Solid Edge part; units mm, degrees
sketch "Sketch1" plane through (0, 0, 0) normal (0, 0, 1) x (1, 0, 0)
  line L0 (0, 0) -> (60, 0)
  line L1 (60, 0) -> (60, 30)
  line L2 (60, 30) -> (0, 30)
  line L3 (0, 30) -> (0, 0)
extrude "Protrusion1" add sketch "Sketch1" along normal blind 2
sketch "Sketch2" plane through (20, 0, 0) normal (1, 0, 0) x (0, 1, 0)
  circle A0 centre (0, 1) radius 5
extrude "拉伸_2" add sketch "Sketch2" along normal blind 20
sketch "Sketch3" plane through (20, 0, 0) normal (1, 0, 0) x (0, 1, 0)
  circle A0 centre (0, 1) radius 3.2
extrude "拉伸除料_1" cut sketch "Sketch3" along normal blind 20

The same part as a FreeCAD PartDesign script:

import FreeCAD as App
import Part
import Sketcher
from FreeCAD import Vector
Q = App.Units.Quantity


def add_polygon(sketch, points):
    """Adds a closed chain of lines whose ends are joined by coincident constraints."""
    first, n = sketch.GeometryCount, len(points)
    for a, b in zip(points, points[1:] + points[:1]):
        sketch.addGeometry(Part.LineSegment(App.Vector(*a, 0), App.Vector(*b, 0)), False)
    for i in range(n):
        sketch.addConstraint(Sketcher.Constraint("Coincident", first + i, 2, first + (i + 1) % n, 1))

doc = App.newDocument("Part")
body = doc.addObject("PartDesign::Body", "Body")

sketch1 = body.newObject("Sketcher::SketchObject", "Sketch")
sketch1.AttachmentSupport = (doc.getObject("XY_Plane"), [""])
sketch1.MapMode = "FlatFace"
add_polygon(sketch1, [(0, 30), (0, 0), (60, 0), (60, 30)])
sketch1.addConstraint(Sketcher.Constraint("Vertical", 0))
sketch1.addConstraint(Sketcher.Constraint("Horizontal", 1))
sketch1.addConstraint(Sketcher.Constraint("Vertical", 2))
sketch1.addConstraint(Sketcher.Constraint("Horizontal", 3))
sketch1.addConstraint(Sketcher.Constraint("Coincident", 0, 2, -1, 1))
sketch1.addConstraint(Sketcher.Constraint("DistanceX", 1, 1, 1, 2, Q("60 mm")))
sketch1.addConstraint(Sketcher.Constraint("DistanceY", 0, 2, 0, 1, Q("30 mm")))
pad1 = body.newObject("PartDesign::Pad", "Pad")
pad1.Profile = sketch1
pad1.Length = 2

sketch2 = body.newObject("Sketcher::SketchObject", "Sketch001")
sketch2.AttachmentSupport = (doc.getObject("YZ_Plane"), [""])
sketch2.MapMode = "FlatFace"
sketch2.AttachmentOffset = App.Placement(Vector(0, 0, 20), App.Rotation())
sketch2.addGeometry(Part.Circle(Vector(0, 1, 0), Vector(0, 0, 1), 5), False)
sketch2.addConstraint(Sketcher.Constraint("PointOnObject", 0, 3, -2))
sketch2.addConstraint(Sketcher.Constraint("Diameter", 0, Q("10 mm")))
sketch2.addConstraint(Sketcher.Constraint("DistanceY", -1, 1, 0, 3, Q("1 mm")))
pad2 = body.newObject("PartDesign::Pad", "Pad001")
pad2.Profile = sketch2
pad2.Length = 20

sketch3 = body.newObject("Sketcher::SketchObject", "Sketch002")
sketch3.AttachmentSupport = (doc.getObject("YZ_Plane"), [""])
sketch3.MapMode = "FlatFace"
sketch3.AttachmentOffset = App.Placement(Vector(0, 0, 20), App.Rotation())
sketch3.addGeometry(Part.Circle(Vector(0, 1, 0), Vector(0, 0, 1), 3.2), False)
sketch3.addConstraint(Sketcher.Constraint("PointOnObject", 0, 3, -2))
sketch3.addConstraint(Sketcher.Constraint("Diameter", 0, Q("6.4 mm")))
sketch3.addConstraint(Sketcher.Constraint("DistanceY", -1, 1, 0, 3, Q("1 mm")))
pocket1 = body.newObject("PartDesign::Pocket", "Pocket")
pocket1.Profile = sketch3
pocket1.Length = 20
pocket1.Reversed = True

doc.recompute()
